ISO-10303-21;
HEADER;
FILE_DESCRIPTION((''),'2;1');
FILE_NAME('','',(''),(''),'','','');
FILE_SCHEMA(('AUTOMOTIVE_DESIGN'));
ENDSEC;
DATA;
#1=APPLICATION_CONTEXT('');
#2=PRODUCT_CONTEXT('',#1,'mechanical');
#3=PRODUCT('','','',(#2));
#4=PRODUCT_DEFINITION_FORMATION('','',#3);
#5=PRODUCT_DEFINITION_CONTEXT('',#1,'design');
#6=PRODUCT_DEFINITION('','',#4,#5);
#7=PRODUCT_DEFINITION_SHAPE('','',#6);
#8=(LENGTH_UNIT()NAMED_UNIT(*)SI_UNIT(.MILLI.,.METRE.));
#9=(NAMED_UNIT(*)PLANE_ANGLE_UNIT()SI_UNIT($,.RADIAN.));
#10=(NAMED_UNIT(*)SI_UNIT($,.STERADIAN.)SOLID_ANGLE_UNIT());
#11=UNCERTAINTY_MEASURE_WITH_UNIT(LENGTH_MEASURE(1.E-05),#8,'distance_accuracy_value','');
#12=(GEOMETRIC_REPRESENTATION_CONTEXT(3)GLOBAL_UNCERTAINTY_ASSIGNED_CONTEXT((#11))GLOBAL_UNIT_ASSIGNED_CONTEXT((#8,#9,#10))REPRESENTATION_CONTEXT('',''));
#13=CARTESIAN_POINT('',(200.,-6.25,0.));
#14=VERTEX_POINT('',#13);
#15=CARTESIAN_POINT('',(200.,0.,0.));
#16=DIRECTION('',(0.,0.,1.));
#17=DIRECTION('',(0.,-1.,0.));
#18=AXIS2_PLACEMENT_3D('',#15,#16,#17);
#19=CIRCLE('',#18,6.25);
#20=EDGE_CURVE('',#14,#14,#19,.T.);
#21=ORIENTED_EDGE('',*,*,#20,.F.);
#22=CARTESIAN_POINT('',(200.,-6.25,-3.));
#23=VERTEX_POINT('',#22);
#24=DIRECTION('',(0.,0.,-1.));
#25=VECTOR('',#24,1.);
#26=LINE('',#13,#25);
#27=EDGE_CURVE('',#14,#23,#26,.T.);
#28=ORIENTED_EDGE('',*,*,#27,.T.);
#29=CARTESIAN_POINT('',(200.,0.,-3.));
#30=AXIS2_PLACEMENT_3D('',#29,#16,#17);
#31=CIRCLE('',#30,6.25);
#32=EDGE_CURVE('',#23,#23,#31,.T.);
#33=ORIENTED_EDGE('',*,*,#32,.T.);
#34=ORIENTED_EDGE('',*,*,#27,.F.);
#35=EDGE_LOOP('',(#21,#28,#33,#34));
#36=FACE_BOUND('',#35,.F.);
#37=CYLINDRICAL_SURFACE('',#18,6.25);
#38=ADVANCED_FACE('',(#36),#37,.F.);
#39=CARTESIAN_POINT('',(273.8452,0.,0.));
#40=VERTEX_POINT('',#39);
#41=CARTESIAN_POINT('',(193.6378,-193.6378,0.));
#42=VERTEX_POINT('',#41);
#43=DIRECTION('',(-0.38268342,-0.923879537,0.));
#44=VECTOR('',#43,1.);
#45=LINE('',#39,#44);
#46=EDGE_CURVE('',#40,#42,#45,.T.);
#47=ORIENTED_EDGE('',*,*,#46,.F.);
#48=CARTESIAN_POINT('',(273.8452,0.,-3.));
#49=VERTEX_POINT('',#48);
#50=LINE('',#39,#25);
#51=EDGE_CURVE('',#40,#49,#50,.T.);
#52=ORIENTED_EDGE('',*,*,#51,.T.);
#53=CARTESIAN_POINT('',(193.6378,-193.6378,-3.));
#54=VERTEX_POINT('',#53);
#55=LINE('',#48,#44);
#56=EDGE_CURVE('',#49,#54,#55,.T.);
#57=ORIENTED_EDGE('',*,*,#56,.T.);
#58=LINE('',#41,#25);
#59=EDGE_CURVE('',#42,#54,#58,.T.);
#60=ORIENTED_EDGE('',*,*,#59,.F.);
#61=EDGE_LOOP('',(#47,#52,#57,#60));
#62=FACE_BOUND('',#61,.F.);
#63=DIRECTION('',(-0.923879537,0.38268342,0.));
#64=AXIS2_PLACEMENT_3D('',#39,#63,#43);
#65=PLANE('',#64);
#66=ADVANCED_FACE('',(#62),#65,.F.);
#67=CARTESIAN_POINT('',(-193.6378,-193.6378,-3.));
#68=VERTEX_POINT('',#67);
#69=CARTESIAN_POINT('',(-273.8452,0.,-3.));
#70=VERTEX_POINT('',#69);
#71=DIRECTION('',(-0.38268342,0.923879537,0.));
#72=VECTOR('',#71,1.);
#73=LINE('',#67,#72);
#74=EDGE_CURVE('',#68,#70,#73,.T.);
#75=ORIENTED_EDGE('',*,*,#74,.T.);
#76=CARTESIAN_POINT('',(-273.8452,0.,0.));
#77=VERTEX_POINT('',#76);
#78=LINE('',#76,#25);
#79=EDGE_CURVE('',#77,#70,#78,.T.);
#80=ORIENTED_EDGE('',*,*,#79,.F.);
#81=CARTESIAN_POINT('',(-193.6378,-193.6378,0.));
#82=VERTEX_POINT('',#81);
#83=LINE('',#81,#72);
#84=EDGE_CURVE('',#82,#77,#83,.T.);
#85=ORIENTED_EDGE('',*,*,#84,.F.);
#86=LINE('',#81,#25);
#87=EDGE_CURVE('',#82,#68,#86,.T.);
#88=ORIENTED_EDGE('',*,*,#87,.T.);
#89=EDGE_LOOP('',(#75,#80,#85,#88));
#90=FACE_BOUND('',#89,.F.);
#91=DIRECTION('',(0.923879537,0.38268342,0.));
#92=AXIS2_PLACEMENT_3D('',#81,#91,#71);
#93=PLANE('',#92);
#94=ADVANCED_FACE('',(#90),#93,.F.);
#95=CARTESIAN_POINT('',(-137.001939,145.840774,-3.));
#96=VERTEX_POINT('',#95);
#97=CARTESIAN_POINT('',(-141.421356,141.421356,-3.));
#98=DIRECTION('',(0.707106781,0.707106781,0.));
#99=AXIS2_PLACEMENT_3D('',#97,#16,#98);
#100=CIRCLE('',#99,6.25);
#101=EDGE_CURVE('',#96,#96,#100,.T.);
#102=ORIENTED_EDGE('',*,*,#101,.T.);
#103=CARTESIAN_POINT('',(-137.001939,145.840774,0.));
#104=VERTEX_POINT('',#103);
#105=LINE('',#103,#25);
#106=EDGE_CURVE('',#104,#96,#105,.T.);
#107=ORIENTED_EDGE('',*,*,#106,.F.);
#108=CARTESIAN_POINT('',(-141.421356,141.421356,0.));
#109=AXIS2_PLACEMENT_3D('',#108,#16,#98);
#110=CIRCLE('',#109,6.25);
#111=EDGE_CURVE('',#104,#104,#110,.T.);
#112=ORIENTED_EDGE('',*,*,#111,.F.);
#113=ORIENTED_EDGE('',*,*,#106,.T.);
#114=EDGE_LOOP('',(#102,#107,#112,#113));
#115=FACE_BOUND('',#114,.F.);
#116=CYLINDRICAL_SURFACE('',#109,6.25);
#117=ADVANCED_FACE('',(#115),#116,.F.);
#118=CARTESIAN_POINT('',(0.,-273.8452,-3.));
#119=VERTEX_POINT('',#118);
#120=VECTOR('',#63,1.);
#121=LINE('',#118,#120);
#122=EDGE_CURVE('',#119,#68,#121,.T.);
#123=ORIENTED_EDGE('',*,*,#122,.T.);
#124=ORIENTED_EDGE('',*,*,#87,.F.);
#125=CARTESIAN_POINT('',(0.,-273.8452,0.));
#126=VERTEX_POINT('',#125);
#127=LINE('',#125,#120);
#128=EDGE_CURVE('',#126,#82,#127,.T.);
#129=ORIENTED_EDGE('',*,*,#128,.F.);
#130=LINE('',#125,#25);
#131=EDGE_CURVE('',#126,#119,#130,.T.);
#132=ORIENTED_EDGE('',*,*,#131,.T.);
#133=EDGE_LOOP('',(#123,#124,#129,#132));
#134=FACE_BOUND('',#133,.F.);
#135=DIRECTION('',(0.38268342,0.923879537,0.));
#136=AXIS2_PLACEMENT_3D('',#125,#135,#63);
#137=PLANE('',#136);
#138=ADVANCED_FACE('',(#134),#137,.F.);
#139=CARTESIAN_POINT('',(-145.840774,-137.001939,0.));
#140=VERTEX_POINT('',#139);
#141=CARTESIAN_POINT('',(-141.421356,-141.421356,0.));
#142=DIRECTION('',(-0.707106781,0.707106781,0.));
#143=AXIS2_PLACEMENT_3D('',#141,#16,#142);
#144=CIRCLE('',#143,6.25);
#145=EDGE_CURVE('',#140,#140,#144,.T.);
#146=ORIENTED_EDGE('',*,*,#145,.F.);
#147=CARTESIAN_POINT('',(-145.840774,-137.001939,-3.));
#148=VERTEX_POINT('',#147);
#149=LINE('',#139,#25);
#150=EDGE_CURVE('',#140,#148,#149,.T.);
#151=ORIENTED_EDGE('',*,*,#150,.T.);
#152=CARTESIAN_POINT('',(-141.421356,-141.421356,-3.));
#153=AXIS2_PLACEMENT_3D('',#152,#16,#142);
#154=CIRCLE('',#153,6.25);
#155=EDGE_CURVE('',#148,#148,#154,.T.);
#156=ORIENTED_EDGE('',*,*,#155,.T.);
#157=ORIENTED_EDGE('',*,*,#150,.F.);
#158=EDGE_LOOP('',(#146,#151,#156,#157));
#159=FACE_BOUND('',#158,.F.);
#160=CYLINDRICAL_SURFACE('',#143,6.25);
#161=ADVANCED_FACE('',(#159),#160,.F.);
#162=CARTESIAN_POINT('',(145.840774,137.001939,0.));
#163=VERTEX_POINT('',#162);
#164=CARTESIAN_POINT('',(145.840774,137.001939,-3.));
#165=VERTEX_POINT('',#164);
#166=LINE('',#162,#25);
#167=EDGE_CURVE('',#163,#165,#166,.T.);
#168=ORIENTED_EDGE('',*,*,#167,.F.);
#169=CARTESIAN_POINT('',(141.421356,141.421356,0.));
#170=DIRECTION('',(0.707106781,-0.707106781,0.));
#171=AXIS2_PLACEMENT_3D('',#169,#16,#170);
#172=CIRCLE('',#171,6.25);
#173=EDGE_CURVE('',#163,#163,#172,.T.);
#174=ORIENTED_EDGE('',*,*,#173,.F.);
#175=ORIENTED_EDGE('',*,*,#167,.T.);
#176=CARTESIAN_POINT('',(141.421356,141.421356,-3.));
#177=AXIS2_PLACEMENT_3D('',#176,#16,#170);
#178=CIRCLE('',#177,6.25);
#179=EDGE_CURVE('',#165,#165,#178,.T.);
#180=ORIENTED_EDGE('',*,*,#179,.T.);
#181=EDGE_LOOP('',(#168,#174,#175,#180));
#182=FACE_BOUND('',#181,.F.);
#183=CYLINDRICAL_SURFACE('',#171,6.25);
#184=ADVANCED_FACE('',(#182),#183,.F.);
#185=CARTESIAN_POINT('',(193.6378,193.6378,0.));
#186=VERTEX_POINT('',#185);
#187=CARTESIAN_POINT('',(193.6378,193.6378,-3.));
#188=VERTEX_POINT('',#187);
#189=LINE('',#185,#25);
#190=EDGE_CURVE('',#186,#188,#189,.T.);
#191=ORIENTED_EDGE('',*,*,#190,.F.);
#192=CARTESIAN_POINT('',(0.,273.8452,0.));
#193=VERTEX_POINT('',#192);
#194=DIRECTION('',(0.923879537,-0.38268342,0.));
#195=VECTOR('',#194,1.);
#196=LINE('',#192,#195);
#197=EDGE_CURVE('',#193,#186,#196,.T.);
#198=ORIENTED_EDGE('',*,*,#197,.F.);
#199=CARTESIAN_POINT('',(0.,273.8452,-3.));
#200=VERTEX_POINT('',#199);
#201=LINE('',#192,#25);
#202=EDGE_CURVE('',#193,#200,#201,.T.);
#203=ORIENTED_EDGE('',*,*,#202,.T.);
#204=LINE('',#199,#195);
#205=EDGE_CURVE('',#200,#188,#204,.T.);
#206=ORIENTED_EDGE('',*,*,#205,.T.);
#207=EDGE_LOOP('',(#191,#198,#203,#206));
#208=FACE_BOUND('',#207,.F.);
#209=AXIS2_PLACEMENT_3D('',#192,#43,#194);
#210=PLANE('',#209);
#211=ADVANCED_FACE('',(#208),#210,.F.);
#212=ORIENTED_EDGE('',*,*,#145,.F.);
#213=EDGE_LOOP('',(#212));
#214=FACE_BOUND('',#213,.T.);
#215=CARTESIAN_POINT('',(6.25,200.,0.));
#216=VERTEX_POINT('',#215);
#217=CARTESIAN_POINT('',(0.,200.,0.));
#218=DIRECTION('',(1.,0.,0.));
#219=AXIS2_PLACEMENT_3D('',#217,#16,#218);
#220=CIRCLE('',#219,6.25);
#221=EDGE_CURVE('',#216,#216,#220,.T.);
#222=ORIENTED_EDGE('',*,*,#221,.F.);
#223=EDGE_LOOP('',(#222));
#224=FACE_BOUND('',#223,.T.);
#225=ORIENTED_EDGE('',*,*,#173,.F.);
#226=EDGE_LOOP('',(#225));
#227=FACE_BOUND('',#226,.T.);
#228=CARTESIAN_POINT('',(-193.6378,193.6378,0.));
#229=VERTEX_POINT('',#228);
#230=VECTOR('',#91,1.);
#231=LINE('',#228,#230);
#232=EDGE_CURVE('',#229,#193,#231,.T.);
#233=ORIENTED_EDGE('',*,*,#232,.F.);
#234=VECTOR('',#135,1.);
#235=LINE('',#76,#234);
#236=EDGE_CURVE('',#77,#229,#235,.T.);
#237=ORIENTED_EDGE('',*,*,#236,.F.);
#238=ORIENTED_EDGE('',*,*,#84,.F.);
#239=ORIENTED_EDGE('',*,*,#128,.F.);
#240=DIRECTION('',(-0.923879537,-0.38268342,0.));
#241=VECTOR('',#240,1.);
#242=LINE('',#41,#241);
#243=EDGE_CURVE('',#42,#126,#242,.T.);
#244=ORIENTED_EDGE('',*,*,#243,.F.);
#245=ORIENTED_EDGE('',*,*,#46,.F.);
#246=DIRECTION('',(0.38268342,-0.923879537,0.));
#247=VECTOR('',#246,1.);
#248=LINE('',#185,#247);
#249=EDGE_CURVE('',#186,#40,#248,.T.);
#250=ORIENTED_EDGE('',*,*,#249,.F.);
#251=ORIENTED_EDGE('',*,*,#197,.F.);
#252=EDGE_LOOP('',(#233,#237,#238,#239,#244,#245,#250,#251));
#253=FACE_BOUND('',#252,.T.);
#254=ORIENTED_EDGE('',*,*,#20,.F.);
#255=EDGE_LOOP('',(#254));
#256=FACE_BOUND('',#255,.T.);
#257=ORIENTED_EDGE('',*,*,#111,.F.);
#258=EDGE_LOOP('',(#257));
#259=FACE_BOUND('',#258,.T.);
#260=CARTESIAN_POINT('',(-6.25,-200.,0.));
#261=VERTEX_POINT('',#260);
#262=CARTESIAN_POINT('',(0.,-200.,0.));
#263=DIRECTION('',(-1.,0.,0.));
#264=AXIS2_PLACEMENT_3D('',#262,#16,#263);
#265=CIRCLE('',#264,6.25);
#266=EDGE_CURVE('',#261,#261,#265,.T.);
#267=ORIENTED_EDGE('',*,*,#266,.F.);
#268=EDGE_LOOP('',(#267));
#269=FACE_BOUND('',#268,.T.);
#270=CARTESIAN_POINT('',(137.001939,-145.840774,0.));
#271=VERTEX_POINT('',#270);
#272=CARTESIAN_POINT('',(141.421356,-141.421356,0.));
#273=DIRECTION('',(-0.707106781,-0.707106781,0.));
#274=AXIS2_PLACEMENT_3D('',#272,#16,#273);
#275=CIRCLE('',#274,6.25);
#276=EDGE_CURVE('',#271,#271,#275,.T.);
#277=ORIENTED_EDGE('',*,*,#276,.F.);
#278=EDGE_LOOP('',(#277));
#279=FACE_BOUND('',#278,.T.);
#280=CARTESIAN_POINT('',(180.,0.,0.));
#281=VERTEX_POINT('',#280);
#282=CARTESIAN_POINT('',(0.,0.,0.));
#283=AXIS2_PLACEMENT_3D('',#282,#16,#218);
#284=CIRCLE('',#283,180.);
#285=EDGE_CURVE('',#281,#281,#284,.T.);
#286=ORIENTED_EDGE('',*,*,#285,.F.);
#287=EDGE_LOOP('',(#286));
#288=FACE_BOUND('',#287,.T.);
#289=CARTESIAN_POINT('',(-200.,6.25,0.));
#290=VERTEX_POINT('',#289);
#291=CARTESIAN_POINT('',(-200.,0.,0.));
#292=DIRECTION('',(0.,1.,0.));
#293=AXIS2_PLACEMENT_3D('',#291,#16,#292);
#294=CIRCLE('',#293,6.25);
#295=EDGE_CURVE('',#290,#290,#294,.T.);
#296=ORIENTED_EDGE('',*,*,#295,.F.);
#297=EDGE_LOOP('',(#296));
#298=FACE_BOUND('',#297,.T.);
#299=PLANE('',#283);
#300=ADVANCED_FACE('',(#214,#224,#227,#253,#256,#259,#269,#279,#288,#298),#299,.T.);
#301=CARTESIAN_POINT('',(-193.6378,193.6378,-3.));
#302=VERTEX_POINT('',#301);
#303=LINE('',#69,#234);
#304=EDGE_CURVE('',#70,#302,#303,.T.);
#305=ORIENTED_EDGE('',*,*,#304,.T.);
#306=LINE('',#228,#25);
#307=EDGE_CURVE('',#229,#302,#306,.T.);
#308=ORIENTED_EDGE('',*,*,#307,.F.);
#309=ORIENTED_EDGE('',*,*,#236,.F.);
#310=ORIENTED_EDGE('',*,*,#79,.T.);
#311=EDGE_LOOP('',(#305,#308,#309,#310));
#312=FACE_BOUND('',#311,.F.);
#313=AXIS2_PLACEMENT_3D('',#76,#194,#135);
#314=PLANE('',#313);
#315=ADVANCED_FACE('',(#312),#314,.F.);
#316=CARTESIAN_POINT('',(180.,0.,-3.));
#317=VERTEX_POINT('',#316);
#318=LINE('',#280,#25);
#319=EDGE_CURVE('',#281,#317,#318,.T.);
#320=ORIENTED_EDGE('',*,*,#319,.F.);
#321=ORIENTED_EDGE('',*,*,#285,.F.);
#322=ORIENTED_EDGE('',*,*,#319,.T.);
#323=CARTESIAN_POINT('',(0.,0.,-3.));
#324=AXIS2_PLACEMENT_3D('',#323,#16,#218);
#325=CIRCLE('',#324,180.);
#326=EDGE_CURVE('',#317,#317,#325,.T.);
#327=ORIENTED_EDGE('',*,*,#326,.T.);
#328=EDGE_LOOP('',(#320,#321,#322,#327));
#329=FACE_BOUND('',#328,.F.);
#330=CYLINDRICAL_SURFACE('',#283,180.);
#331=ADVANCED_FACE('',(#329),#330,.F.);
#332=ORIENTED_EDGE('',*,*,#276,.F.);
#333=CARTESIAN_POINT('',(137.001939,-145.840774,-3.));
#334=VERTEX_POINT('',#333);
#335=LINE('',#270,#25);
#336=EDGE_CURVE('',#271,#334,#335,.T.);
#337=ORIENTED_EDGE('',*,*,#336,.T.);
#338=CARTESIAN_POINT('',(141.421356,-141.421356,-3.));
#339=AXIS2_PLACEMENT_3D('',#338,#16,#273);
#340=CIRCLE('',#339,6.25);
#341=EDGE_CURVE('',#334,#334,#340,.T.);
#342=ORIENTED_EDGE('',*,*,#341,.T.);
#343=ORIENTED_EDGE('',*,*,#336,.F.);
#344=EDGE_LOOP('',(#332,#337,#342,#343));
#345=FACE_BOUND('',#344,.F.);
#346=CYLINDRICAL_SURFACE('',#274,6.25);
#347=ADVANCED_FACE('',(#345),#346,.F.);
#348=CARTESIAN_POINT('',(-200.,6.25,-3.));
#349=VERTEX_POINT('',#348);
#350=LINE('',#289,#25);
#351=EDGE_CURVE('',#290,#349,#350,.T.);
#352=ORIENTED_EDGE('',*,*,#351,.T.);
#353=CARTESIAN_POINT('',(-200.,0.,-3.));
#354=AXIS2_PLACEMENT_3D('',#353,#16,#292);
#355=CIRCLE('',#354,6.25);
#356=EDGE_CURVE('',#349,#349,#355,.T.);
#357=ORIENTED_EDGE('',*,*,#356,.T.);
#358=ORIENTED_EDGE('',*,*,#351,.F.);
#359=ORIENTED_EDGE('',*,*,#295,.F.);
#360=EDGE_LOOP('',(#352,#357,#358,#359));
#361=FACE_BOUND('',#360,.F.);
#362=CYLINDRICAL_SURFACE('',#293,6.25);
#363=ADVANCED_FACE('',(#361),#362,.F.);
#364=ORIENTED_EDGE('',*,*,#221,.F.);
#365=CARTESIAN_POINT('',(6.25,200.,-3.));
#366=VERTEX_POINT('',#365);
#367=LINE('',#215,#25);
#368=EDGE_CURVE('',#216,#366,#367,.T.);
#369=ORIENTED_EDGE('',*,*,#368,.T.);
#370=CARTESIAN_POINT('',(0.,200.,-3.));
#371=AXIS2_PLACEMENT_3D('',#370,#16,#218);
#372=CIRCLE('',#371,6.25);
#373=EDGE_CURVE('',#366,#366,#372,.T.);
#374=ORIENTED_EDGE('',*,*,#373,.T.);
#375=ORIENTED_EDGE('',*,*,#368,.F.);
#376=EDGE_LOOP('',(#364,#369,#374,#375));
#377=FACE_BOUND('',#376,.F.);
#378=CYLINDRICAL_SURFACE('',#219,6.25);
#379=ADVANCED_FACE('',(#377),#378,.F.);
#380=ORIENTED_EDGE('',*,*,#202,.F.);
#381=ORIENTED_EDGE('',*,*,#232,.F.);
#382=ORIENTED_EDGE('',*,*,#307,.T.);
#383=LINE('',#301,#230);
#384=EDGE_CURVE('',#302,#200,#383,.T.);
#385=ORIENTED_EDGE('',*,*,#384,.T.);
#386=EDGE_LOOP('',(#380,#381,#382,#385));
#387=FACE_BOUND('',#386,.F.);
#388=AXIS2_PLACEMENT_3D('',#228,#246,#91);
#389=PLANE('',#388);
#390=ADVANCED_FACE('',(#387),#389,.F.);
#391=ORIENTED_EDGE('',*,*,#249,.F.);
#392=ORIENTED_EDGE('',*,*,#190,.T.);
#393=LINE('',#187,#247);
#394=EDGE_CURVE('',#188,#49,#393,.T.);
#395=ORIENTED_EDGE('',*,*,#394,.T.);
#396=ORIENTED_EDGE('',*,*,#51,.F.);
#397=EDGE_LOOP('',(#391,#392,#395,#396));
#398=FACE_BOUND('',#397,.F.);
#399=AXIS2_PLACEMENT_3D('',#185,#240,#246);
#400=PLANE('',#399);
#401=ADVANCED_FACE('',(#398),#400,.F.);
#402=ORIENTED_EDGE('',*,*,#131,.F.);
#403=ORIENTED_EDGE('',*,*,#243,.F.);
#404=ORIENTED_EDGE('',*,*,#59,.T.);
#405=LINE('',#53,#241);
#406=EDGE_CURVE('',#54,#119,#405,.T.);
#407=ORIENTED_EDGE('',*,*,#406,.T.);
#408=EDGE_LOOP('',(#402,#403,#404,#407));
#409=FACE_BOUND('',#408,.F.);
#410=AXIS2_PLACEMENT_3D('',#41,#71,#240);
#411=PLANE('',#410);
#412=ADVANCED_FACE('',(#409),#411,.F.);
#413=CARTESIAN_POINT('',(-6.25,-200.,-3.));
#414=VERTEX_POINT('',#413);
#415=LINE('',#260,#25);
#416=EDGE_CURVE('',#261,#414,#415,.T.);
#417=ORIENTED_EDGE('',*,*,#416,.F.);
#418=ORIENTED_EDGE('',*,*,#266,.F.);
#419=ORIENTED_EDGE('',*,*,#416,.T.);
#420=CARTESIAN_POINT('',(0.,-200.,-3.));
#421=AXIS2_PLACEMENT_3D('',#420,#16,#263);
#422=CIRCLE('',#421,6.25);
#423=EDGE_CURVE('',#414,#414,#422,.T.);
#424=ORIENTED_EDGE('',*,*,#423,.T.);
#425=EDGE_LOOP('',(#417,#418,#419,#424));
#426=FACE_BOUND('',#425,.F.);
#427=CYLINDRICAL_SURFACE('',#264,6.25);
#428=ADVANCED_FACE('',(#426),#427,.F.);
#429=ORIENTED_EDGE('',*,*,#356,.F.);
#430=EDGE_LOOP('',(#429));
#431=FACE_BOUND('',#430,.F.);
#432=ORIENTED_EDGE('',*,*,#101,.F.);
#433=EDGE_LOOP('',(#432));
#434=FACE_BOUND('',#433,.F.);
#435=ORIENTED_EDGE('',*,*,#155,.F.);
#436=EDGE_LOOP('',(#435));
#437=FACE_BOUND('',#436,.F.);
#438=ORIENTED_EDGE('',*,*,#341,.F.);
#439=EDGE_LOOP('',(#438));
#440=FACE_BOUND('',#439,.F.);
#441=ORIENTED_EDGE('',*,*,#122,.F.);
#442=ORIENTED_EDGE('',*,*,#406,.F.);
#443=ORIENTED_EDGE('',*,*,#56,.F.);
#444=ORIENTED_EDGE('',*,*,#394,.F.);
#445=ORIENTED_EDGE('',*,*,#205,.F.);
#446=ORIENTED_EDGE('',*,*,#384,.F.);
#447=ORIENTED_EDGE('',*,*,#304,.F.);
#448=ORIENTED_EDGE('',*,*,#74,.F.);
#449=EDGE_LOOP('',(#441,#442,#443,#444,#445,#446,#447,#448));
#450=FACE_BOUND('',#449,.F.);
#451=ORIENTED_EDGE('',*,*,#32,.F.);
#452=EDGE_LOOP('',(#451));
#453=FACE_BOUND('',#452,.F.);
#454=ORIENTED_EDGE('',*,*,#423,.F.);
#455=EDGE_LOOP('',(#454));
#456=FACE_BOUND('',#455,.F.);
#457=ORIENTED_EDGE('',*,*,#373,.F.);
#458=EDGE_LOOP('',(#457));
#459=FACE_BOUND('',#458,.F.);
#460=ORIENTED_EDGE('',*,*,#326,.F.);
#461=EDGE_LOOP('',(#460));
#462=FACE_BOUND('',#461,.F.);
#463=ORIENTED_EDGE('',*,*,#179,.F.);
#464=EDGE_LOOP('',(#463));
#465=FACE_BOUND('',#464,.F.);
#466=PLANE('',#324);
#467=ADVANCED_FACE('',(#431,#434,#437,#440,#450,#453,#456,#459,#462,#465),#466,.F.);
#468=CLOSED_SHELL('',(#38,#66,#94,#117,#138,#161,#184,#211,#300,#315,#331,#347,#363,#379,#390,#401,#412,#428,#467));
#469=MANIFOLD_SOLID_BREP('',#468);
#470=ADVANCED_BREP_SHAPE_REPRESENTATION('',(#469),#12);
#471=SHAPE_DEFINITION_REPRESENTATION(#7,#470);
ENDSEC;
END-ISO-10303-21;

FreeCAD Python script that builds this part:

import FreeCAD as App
import Part
import Sketcher

V = App.Vector
Q = App.Units.Quantity


def add_polygon(sketch, points):
    """Adds a closed chain of lines whose ends are joined by coincident constraints."""
    first, n = sketch.GeometryCount, len(points)
    for a, b in zip(points, points[1:] + points[:1]):
        sketch.addGeometry(Part.LineSegment(App.Vector(*a, 0), App.Vector(*b, 0)), False)
    for i in range(n):
        sketch.addConstraint(Sketcher.Constraint("Coincident", first + i, 2, first + (i + 1) % n, 1))

doc = App.newDocument("Part")
params = doc.addObject("Spreadsheet::Sheet", "Params")
for row, (alias, value) in enumerate([
    ("sketch1_diameter", "360 mm"),
    ("pad1_length", "3 mm"),
    ("sketch2_diameter", "12.5 mm"),
    ("pocket1_length", "3 mm"),
], start=1):
    params.set(f"A{row}", alias)
    params.set(f"B{row}", "=" + value)
    params.setAlias(f"B{row}", alias)

body = doc.addObject("PartDesign::Body", "Body")

# Sketch on XY plane
sketch1 = body.newObject("Sketcher::SketchObject", "Sketch")
sketch1.AttachmentSupport = (doc.getObject("XY_Plane"), [""])
sketch1.MapMode = "FlatFace"
add_polygon(sketch1, [(0, 274), (-194, 194), (-274, 0), (-194, -194), (0, -274), (194, -194), (274, 0), (194, 194)])  # lines 0-7
sketch1.addGeometry(Part.Circle(V(0, 0, 0), V(0, 0, 1), 180), False)  # 8
sketch1.addConstraint([
    Sketcher.Constraint("Coincident", 8, 3, -1, 1),
    Sketcher.Constraint("Symmetric", 0, 2, 4, 2, -1, 1),
    Sketcher.Constraint("Symmetric", 1, 2, 5, 2, -1, 1),
    Sketcher.Constraint("Symmetric", 2, 2, 6, 2, -1, 1),
    Sketcher.Constraint("Symmetric", 3, 2, 7, 2, -1, 1),
    Sketcher.Constraint("Symmetric", 2, 2, 4, 2, -2),
    Sketcher.Constraint("PointOnObject", 1, 2, -1),
    Sketcher.Constraint("PointOnObject", 3, 2, -2),
    Sketcher.Constraint("Perpendicular", 0, 2),
    Sketcher.Constraint("Equal", 0, 1),
    Sketcher.Constraint("Diameter", 8, 360.0),
    Sketcher.Constraint("Angle", 0, Q("-157.5 deg")),
    Sketcher.Constraint("Distance", 0, 209.592),
])
sketch1.setExpression("Constraints[18]", "Params.sketch1_diameter")
pad1 = body.newObject("PartDesign::Pad", "Pad")
pad1.Profile = sketch1
pad1.setExpression("Length", "Params.pad1_length")
pad1.Reversed = True

# Sketch on XY plane
sketch2 = body.newObject("Sketcher::SketchObject", "Sketch001")
sketch2.AttachmentSupport = (doc.getObject("XY_Plane"), [""])
sketch2.MapMode = "FlatFace"
sketch2.addGeometry(Part.Circle(V(0, 200, 0), V(0, 0, 1), 6), False)
sketch2.addConstraint([
    Sketcher.Constraint("PointOnObject", 0, 3, -2),
    Sketcher.Constraint("Diameter", 0, 12.5),
    Sketcher.Constraint("DistanceY", -1, 1, 0, 3, 200.0),
])
sketch2.setExpression("Constraints[1]", "Params.sketch2_diameter")
pocket1 = body.newObject("PartDesign::Pocket", "Pocket")
pocket1.Profile = sketch2
pocket1.setExpression("Length", "Params.pocket1_length")
doc.recompute()

polarpattern = body.newObject("PartDesign::PolarPattern", "PolarPattern")
polarpattern.Originals = [pocket1]
polarpattern.Axis = (doc.getObject("Z_Axis"), [""])
polarpattern.Angle = 360
polarpattern.Occurrences = 8
body.Tip = polarpattern

doc.recompute()
